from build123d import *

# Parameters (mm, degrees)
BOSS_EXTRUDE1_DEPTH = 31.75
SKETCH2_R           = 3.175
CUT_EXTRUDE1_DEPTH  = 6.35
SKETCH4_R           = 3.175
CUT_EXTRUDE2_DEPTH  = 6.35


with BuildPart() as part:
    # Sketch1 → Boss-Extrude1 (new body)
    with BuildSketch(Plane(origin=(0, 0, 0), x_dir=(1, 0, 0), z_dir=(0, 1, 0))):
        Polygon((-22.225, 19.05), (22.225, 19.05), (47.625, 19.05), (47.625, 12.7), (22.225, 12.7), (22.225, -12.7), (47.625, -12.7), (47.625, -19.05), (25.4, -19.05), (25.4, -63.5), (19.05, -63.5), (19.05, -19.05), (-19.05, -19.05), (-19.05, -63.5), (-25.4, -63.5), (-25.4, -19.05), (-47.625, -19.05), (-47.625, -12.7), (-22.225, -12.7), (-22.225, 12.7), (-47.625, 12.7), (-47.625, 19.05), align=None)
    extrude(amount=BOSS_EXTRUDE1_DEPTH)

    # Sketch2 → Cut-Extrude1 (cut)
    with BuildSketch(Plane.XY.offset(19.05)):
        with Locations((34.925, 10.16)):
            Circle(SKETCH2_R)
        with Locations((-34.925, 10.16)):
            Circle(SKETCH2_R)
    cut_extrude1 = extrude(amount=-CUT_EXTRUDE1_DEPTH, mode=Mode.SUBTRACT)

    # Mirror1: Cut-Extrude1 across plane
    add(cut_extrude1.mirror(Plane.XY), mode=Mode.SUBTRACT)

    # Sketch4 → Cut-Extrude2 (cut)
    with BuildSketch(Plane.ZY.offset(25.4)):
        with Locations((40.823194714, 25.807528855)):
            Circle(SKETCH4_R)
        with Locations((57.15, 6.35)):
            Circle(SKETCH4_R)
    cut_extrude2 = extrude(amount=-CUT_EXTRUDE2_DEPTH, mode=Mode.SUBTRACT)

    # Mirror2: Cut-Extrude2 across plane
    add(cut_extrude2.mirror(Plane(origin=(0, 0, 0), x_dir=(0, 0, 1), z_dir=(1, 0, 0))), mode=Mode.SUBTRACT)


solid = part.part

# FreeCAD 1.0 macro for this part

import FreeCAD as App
import Part
import Sketcher

V = App.Vector
Q = App.Units.Quantity


def add_polygon(sketch, points):
    """Adds a closed chain of lines whose ends are joined by coincident constraints."""
    first, n = sketch.GeometryCount, len(points)
    for a, b in zip(points, points[1:] + points[:1]):
        sketch.addGeometry(Part.LineSegment(App.Vector(*a, 0), App.Vector(*b, 0)), False)
    for i in range(n):
        sketch.addConstraint(Sketcher.Constraint("Coincident", first + i, 2, first + (i + 1) % n, 1))

doc = App.newDocument("Part")
body = doc.addObject("PartDesign::Body", "Body")

# Sketch on XZ plane
sketch1 = doc.addObject("Sketcher::SketchObject", "Sketch")
body.addObject(sketch1)
sketch1.AttachmentSupport = (doc.XZ_Plane, [""])
sketch1.MapMode = "FlatFace"
add_polygon(sketch1, [(48, -19), (-48, -19), (-48, -13), (-22, -13), (-22, 13), (-48, 13), (-48, 19), (-25, 19), (-25, 64), (-19, 64), (-19, 19), (19, 19), (19, 64), (25, 64), (25, 19), (48, 19), (48, 13), (22, 13), (22, -13), (48, -13)])  # lines 0-19
sketch1.addConstraint([
    Sketcher.Constraint("Horizontal", 0),
    Sketcher.Constraint("Vertical", 1),
    Sketcher.Constraint("Horizontal", 2),
    Sketcher.Constraint("Vertical", 3),
    Sketcher.Constraint("Horizontal", 4),
    Sketcher.Constraint("Vertical", 5),
    Sketcher.Constraint("Horizontal", 6),
    Sketcher.Constraint("Vertical", 7),
    Sketcher.Constraint("Horizontal", 8),
    Sketcher.Constraint("Vertical", 9),
    Sketcher.Constraint("Horizontal", 10),
    Sketcher.Constraint("Vertical", 11),
    Sketcher.Constraint("Horizontal", 12),
    Sketcher.Constraint("Vertical", 13),
    Sketcher.Constraint("Horizontal", 14),
    Sketcher.Constraint("Vertical", 15),
    Sketcher.Constraint("Horizontal", 16),
    Sketcher.Constraint("Vertical", 17),
    Sketcher.Constraint("Horizontal", 18),
    Sketcher.Constraint("Vertical", 19),
    Sketcher.Constraint("Symmetric", 0, 2, 14, 2, -1, 1),
    Sketcher.Constraint("Symmetric", 2, 2, 16, 2, -1, 1),
    Sketcher.Constraint("Symmetric", 4, 2, 18, 2, -1, 1),
    Sketcher.Constraint("Symmetric", 8, 2, 11, 2, -2),
    Sketcher.Constraint("Symmetric", 6, 2, 13, 2, -2),
    Sketcher.Constraint("Symmetric", 4, 2, 15, 2, -2),
    Sketcher.Constraint("Horizontal", 6, 2, 9, 2),
    Sketcher.Constraint("Equal", 12, 1),
    Sketcher.Constraint("Equal", 18, 3),
    Sketcher.Constraint("DistanceX", 2, 1, 2, 2, Q("1 in")),
    Sketcher.Constraint("DistanceX", 10, 1, 10, 2, Q("1.5 in")),
    Sketcher.Constraint("DistanceX", 6, 2, -1, 1, Q("1 in")),
    Sketcher.Constraint("DistanceY", 3, 2, 7, 2, Q("2 in")),
    Sketcher.Constraint("DistanceX", 0, 2, 0, 1, Q("3.75 in")),
])
pad1 = doc.addObject("PartDesign::Pad", "Pad")
body.addObject(pad1)
pad1.Profile = sketch1
pad1.Length = Q("1.25 in")
pad1.Reversed = True

# Sketch on XY plane
sketch2 = doc.addObject("Sketcher::SketchObject", "Sketch001")
body.addObject(sketch2)
sketch2.AttachmentSupport = (doc.XY_Plane, [""])
sketch2.MapMode = "FlatFace"
sketch2.AttachmentOffset = App.Placement(V(0, 0, 0.75 * 25.4), App.Rotation())
sketch2.addGeometry([
    Part.Circle(V(34.9, 10.2, 0), V(0, 0, 1), 3.2),
    Part.Circle(V(-34.9, 10.2, 0), V(0, 0, 1), 3.2),
], False)
sketch2.addConstraint([
    Sketcher.Constraint("Equal", 0, 1),
    Sketcher.Constraint("Symmetric", 0, 3, 1, 3, -2),
    Sketcher.Constraint("Diameter", 0, Q("0.25 in")),
    Sketcher.Constraint("DistanceY", -1, 1, 0, 3, Q("0.4 in")),
    Sketcher.Constraint("DistanceX", 1, 3, 0, 3, Q("2.75 in")),
])
pocket1 = doc.addObject("PartDesign::Pocket", "Pocket")
body.addObject(pocket1)
pocket1.Profile = sketch2
pocket1.Length = Q("0.25 in")
doc.recompute()

mirrored = doc.addObject("PartDesign::Mirrored", "Mirrored")
body.addObject(mirrored)
mirrored.Originals = [pocket1]
mirrored.MirrorPlane = (doc.XY_Plane, [""])
body.Tip = mirrored

# Sketch on YZ plane
sketch3 = doc.addObject("Sketcher::SketchObject", "Sketch002")
body.addObject(sketch3)
sketch3.AttachmentSupport = (doc.YZ_Plane, [""])
sketch3.MapMode = "FlatFace"
sketch3.AttachmentOffset = App.Placement(V(0, 0, -1 * 25.4), App.Rotation())
sketch3.addGeometry([
    Part.Circle(V(25.8, 40.8, 0), V(0, 0, 1), 3.2),
    Part.Circle(V(6.3, 57.1, 0), V(0, 0, 1), 3.2),
], False)
sketch3.addConstraint([
    Sketcher.Constraint("Equal", 0, 1),
    Sketcher.Constraint("Diameter", 0, Q("0.25 in")),
    Sketcher.Constraint("DistanceX", -1, 1, 1, 3, Q("0.25 in")),
    Sketcher.Constraint("DistanceY", -1, 1, 1, 3, Q("2.25 in")),
    Sketcher.Constraint("DistanceX", -1, 1, 0, 3, Q("25.807529 mm")),
    Sketcher.Constraint("DistanceY", -1, 1, 0, 3, Q("40.823195 mm")),
])
pocket2 = doc.addObject("PartDesign::Pocket", "Pocket001")
body.addObject(pocket2)
pocket2.Profile = sketch3
pocket2.Length = Q("0.25 in")
pocket2.Reversed = True
doc.recompute()

mirrored2 = doc.addObject("PartDesign::Mirrored", "Mirrored001")
body.addObject(mirrored2)
mirrored2.Originals = [pocket2]
mirrored2.MirrorPlane = (doc.YZ_Plane, [""])
body.Tip = mirrored2

doc.recompute()
